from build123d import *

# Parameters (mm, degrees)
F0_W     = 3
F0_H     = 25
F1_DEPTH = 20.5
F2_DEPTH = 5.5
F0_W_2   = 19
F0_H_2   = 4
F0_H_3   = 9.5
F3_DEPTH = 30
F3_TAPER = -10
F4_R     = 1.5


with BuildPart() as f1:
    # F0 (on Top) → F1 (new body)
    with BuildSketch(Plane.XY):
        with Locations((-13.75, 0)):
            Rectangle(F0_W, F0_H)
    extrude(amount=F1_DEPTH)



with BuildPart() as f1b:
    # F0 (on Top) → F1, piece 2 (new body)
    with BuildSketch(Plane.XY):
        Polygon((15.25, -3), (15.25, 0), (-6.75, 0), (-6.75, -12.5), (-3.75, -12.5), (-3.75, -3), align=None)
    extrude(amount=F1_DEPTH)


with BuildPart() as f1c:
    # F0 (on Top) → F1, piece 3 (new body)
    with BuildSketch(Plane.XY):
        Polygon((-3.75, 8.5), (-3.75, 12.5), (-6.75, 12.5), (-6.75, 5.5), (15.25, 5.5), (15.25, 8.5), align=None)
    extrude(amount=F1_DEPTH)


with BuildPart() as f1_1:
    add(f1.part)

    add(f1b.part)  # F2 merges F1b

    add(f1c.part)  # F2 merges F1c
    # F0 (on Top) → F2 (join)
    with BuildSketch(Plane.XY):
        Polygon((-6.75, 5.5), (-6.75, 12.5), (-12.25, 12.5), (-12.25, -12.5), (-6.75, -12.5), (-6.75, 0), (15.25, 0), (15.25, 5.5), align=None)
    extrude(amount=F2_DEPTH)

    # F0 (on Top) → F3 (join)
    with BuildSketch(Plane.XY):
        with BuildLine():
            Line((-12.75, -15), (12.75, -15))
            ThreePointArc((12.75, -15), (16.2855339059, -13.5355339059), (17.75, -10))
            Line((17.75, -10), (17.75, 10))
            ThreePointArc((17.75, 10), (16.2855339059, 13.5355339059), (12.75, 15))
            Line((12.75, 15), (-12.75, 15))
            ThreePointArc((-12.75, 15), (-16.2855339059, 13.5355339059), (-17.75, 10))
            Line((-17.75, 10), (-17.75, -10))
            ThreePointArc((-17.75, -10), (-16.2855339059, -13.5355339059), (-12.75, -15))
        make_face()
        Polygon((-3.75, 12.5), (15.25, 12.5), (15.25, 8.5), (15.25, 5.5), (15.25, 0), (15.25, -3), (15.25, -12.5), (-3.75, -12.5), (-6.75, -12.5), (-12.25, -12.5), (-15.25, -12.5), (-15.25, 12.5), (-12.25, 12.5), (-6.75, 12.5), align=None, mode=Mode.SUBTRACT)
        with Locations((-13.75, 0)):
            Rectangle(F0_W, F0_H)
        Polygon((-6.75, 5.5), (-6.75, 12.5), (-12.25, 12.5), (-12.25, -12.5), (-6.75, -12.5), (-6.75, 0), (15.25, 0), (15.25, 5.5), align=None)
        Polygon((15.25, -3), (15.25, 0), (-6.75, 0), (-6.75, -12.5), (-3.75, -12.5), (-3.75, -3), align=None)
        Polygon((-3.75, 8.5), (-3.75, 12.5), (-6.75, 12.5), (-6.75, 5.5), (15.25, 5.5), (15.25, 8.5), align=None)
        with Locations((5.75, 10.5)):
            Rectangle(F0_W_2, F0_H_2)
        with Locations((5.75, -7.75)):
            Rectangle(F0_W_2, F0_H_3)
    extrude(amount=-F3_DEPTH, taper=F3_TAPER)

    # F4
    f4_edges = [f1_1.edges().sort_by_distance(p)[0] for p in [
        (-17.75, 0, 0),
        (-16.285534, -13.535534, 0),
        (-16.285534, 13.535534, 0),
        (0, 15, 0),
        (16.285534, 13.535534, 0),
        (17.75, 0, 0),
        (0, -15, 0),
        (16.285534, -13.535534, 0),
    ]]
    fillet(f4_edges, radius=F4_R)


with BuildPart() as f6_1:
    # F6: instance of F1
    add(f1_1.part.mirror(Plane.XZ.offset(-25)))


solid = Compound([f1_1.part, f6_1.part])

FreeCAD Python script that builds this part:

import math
import FreeCAD as App
import Part
import Sketcher

V = App.Vector
Q = App.Units.Quantity


def edges_at(feature, points):
    """Names of the edges that pass closest to the given points."""
    edges = feature.Shape.Edges
    near = lambda p: min(range(len(edges)), key=lambda i: edges[i].distToShape(Part.Vertex(*p))[0])
    return sorted({f"Edge{near(p) + 1}" for p in points})

doc = App.newDocument("Part")
body = doc.addObject("PartDesign::Body", "Body")

# Sketch on XY plane
sketch1 = body.newObject("Sketcher::SketchObject", "Sketch")
sketch1.AttachmentSupport = (doc.getObject("XY_Plane"), [""])
sketch1.MapMode = "FlatFace"
sketch1.addGeometry([
    Part.LineSegment(V(-15.25, 12.5, 0), V(-15.25, -12.5, 0)),
    Part.LineSegment(V(-15.25, -12.5, 0), V(-12.25, -12.5, 0)),
    Part.LineSegment(V(-12.25, -12.5, 0), V(-12.25, 12.5, 0)),
    Part.LineSegment(V(-12.25, 12.5, 0), V(-15.25, 12.5, 0)),
], False)
sketch1.addConstraint([
    Sketcher.Constraint("Coincident", 0, 2, 1, 1),
    Sketcher.Constraint("Coincident", 1, 2, 2, 1),
    Sketcher.Constraint("Coincident", 2, 2, 3, 1),
    Sketcher.Constraint("Coincident", 3, 2, 0, 1),
    Sketcher.Constraint("Vertical", 0),
    Sketcher.Constraint("Horizontal", 1),
    Sketcher.Constraint("Vertical", 2),
    Sketcher.Constraint("Horizontal", 3),
    Sketcher.Constraint("DistanceX", 1, 1, 1, 2, Q("3 mm")),
    Sketcher.Constraint("DistanceY", 0, 2, 0, 1, Q("25 mm")),
    Sketcher.Constraint("DistanceY", 0, 2, -1, 1, Q("12.5 mm")),
    Sketcher.Constraint("DistanceX", 0, 2, -1, 1, Q("15.25 mm")),
])
pad1 = body.newObject("PartDesign::Pad", "Pad")
pad1.Profile = sketch1
pad1.Length = 20.5
body2 = doc.addObject("PartDesign::Body", "Body001")

# Sketch on XY plane
sketch2 = body2.newObject("Sketcher::SketchObject", "Sketch001")
sketch2.AttachmentSupport = (doc.getObject("XY_Plane001"), [""])
sketch2.MapMode = "FlatFace"
sketch2.addGeometry([
    Part.LineSegment(V(15.25, -3, 0), V(15.25, 0, 0)),  # 0
    Part.LineSegment(V(15.25, 0, 0), V(-6.75, 0, 0)),  # 1
    Part.LineSegment(V(-6.75, 0, 0), V(-6.75, -12.5, 0)),  # 2
    Part.LineSegment(V(-6.75, -12.5, 0), V(-3.75, -12.5, 0)),  # 3
    Part.LineSegment(V(-3.75, -12.5, 0), V(-3.75, -3, 0)),  # 4
    Part.LineSegment(V(-3.75, -3, 0), V(15.25, -3, 0)),  # 5
], False)
sketch2.addConstraint([
    Sketcher.Constraint("Coincident", 0, 2, 1, 1),
    Sketcher.Constraint("Coincident", 1, 2, 2, 1),
    Sketcher.Constraint("Coincident", 2, 2, 3, 1),
    Sketcher.Constraint("Coincident", 3, 2, 4, 1),
    Sketcher.Constraint("Coincident", 4, 2, 5, 1),
    Sketcher.Constraint("Coincident", 5, 2, 0, 1),
    Sketcher.Constraint("Vertical", 0),
    Sketcher.Constraint("Horizontal", 1),
    Sketcher.Constraint("Vertical", 2),
    Sketcher.Constraint("Horizontal", 3),
    Sketcher.Constraint("Vertical", 4),
    Sketcher.Constraint("Horizontal", 5),
    Sketcher.Constraint("PointOnObject", 0, 2, -1),
    Sketcher.Constraint("Equal", 3, 0),
    Sketcher.Constraint("DistanceX", 1, 2, 1, 1, Q("22 mm")),
    Sketcher.Constraint("DistanceX", 3, 1, 3, 2, Q("3 mm")),
    Sketcher.Constraint("DistanceY", 2, 2, 2, 1, Q("12.5 mm")),
    Sketcher.Constraint("DistanceX", -1, 1, 0, 2, Q("15.25 mm")),
])
pad2 = body2.newObject("PartDesign::Pad", "Pad001")
pad2.Profile = sketch2
pad2.Length = 20.5
body3 = doc.addObject("PartDesign::Body", "Body002")

# Sketch on XY plane
sketch3 = body3.newObject("Sketcher::SketchObject", "Sketch002")
sketch3.AttachmentSupport = (doc.getObject("XY_Plane002"), [""])
sketch3.MapMode = "FlatFace"
sketch3.addGeometry([
    Part.LineSegment(V(-3.75, 8.5, 0), V(-3.75, 12.5, 0)),  # 0
    Part.LineSegment(V(-3.75, 12.5, 0), V(-6.75, 12.5, 0)),  # 1
    Part.LineSegment(V(-6.75, 12.5, 0), V(-6.75, 5.5, 0)),  # 2
    Part.LineSegment(V(-6.75, 5.5, 0), V(15.25, 5.5, 0)),  # 3
    Part.LineSegment(V(15.25, 5.5, 0), V(15.25, 8.5, 0)),  # 4
    Part.LineSegment(V(15.25, 8.5, 0), V(-3.75, 8.5, 0)),  # 5
], False)
sketch3.addConstraint([
    Sketcher.Constraint("Coincident", 0, 2, 1, 1),
    Sketcher.Constraint("Coincident", 1, 2, 2, 1),
    Sketcher.Constraint("Coincident", 2, 2, 3, 1),
    Sketcher.Constraint("Coincident", 3, 2, 4, 1),
    Sketcher.Constraint("Coincident", 4, 2, 5, 1),
    Sketcher.Constraint("Coincident", 5, 2, 0, 1),
    Sketcher.Constraint("Vertical", 0),
    Sketcher.Constraint("Horizontal", 1),
    Sketcher.Constraint("Vertical", 2),
    Sketcher.Constraint("Horizontal", 3),
    Sketcher.Constraint("Vertical", 4),
    Sketcher.Constraint("Horizontal", 5),
    Sketcher.Constraint("Equal", 1, 4),
    Sketcher.Constraint("DistanceX", 1, 2, 1, 1, Q("3 mm")),
    Sketcher.Constraint("DistanceX", 3, 1, 3, 2, Q("22 mm")),
    Sketcher.Constraint("DistanceY", 0, 1, 0, 2, Q("4 mm")),
    Sketcher.Constraint("DistanceY", -1, 1, 0, 2, Q("12.5 mm")),
    Sketcher.Constraint("DistanceX", 0, 2, -1, 1, Q("3.75 mm")),
])
pad3 = body3.newObject("PartDesign::Pad", "Pad002")
pad3.Profile = sketch3
pad3.Length = 20.5
body.AllowCompound = True
doc.recompute()

boolean = body.newObject("PartDesign::Boolean", "Boolean")
boolean.Type = "Fuse"
boolean.addObjects([body2])
doc.recompute()

boolean2 = body.newObject("PartDesign::Boolean", "Boolean001")
boolean2.Type = "Fuse"
boolean2.addObjects([body3])

# Sketch on XY plane
sketch4 = body.newObject("Sketcher::SketchObject", "Sketch003")
sketch4.AttachmentSupport = (doc.getObject("XY_Plane"), [""])
sketch4.MapMode = "FlatFace"
sketch4.addGeometry([
    Part.LineSegment(V(-6.75, 5.5, 0), V(-6.75, 12.5, 0)),  # 0
    Part.LineSegment(V(-6.75, 12.5, 0), V(-12.25, 12.5, 0)),  # 1
    Part.LineSegment(V(-12.25, 12.5, 0), V(-12.25, -12.5, 0)),  # 2
    Part.LineSegment(V(-12.25, -12.5, 0), V(-6.75, -12.5, 0)),  # 3
    Part.LineSegment(V(-6.75, -12.5, 0), V(-6.75, 0, 0)),  # 4
    Part.LineSegment(V(-6.75, 0, 0), V(15.25, 0, 0)),  # 5
    Part.LineSegment(V(15.25, 0, 0), V(15.25, 5.5, 0)),  # 6
    Part.LineSegment(V(15.25, 5.5, 0), V(-6.75, 5.5, 0)),  # 7
], False)
sketch4.addConstraint([
    Sketcher.Constraint("Coincident", 0, 2, 1, 1),
    Sketcher.Constraint("Coincident", 1, 2, 2, 1),
    Sketcher.Constraint("Coincident", 2, 2, 3, 1),
    Sketcher.Constraint("Coincident", 3, 2, 4, 1),
    Sketcher.Constraint("Coincident", 4, 2, 5, 1),
    Sketcher.Constraint("Coincident", 5, 2, 6, 1),
    Sketcher.Constraint("Coincident", 6, 2, 7, 1),
    Sketcher.Constraint("Coincident", 7, 2, 0, 1),
    Sketcher.Constraint("Vertical", 0),
    Sketcher.Constraint("Horizontal", 1),
    Sketcher.Constraint("Vertical", 2),
    Sketcher.Constraint("Horizontal", 3),
    Sketcher.Constraint("Vertical", 4),
    Sketcher.Constraint("Horizontal", 5),
    Sketcher.Constraint("Vertical", 6),
    Sketcher.Constraint("Horizontal", 7),
    Sketcher.Constraint("Symmetric", 0, 2, 3, 2, -1),
    Sketcher.Constraint("PointOnObject", 4, 2, -1),
    Sketcher.Constraint("Equal", 3, 6),
    Sketcher.Constraint("DistanceX", 5, 1, 5, 2, Q("22 mm")),
    Sketcher.Constraint("DistanceY", 0, 1, 0, 2, Q("7 mm")),
    Sketcher.Constraint("DistanceY", 2, 2, 2, 1, Q("25 mm")),
    Sketcher.Constraint("DistanceX", 0, 2, -1, 1, Q("6.75 mm")),
])
pad4 = body.newObject("PartDesign::Pad", "Pad003")
pad4.Profile = sketch4
pad4.Length = 5.5

# Sketch on XY plane
sketch5 = body.newObject("Sketcher::SketchObject", "Sketch004")
sketch5.AttachmentSupport = (doc.getObject("XY_Plane"), [""])
sketch5.MapMode = "FlatFace"
sketch5.addGeometry([
    Part.LineSegment(V(-12.75, -15, 0), V(12.75, -15, 0)),  # 0
    Part.ArcOfCircle(Part.Circle(V(12.75, -10, 0), V(0, 0, 1), 5), math.radians(-90), math.radians(0)),  # 1
    Part.LineSegment(V(17.75, -10, 0), V(17.75, 10, 0)),  # 2
    Part.ArcOfCircle(Part.Circle(V(12.75, 10, 0), V(0, 0, 1), 5), math.radians(0), math.radians(90)),  # 3
    Part.LineSegment(V(12.75, 15, 0), V(-12.75, 15, 0)),  # 4
    Part.ArcOfCircle(Part.Circle(V(-12.75, 10, 0), V(0, 0, 1), 5), math.radians(90), math.radians(180)),  # 5
    Part.LineSegment(V(-17.75, 10, 0), V(-17.75, -10, 0)),  # 6
    Part.ArcOfCircle(Part.Circle(V(-12.75, -10, 0), V(0, 0, 1), 5), math.radians(180), math.radians(270)),  # 7
], False)
sketch5.addConstraint([
    Sketcher.Constraint("Tangent", 0, 2, 1, 1),
    Sketcher.Constraint("Tangent", 1, 2, 2, 1),
    Sketcher.Constraint("Tangent", 2, 2, 3, 1),
    Sketcher.Constraint("Tangent", 3, 2, 4, 1),
    Sketcher.Constraint("Tangent", 4, 2, 5, 1),
    Sketcher.Constraint("Tangent", 5, 2, 6, 1),
    Sketcher.Constraint("Tangent", 6, 2, 7, 1),
    Sketcher.Constraint("Tangent", 7, 2, 0, 1),
    Sketcher.Constraint("Horizontal", 0),
    Sketcher.Constraint("Vertical", 2),
    Sketcher.Constraint("Horizontal", 4),
    Sketcher.Constraint("Vertical", 6),
    Sketcher.Constraint("Equal", 1, 3),
    Sketcher.Constraint("Equal", 3, 5),
    Sketcher.Constraint("Equal", 5, 7),
    Sketcher.Constraint("Symmetric", 1, 3, 5, 3, -1, 1),
    Sketcher.Constraint("Radius", 1, Q("5 mm")),
    Sketcher.Constraint("DistanceY", 2, 1, 2, 2, Q("20 mm")),
    Sketcher.Constraint("DistanceX", 0, 1, 0, 2, Q("25.5 mm")),
])
pad5 = body.newObject("PartDesign::Pad", "Pad004")
pad5.Profile = sketch5
pad5.Length = 30
pad5.Reversed = True
pad5.TaperAngle = 10
doc.recompute()

fillet = body.newObject("PartDesign::Fillet", "Fillet")
fillet.Base = (pad5, edges_at(pad5, [
    (-17.75, 0, 0),
    (-16.286, -13.536, 0),
    (-16.286, 13.536, 0),
    (0, 15, 0),
    (16.286, 13.536, 0),
    (17.75, 0, 0),
    (0, -15, 0),
    (16.286, -13.536, 0),
]))
fillet.Radius = 1.5
body4 = doc.addObject("PartDesign::Body", "Body003")
doc.recompute()

mirroring = doc.addObject("Part::Mirroring", "Mirroring")
mirroring.Source = body
mirroring.Base = V(0, 25, 0)
mirroring.Normal = V(0, -1, 0)
body4.BaseFeature = mirroring
doc.recompute()
mirroring.Visibility = False

doc.recompute()
